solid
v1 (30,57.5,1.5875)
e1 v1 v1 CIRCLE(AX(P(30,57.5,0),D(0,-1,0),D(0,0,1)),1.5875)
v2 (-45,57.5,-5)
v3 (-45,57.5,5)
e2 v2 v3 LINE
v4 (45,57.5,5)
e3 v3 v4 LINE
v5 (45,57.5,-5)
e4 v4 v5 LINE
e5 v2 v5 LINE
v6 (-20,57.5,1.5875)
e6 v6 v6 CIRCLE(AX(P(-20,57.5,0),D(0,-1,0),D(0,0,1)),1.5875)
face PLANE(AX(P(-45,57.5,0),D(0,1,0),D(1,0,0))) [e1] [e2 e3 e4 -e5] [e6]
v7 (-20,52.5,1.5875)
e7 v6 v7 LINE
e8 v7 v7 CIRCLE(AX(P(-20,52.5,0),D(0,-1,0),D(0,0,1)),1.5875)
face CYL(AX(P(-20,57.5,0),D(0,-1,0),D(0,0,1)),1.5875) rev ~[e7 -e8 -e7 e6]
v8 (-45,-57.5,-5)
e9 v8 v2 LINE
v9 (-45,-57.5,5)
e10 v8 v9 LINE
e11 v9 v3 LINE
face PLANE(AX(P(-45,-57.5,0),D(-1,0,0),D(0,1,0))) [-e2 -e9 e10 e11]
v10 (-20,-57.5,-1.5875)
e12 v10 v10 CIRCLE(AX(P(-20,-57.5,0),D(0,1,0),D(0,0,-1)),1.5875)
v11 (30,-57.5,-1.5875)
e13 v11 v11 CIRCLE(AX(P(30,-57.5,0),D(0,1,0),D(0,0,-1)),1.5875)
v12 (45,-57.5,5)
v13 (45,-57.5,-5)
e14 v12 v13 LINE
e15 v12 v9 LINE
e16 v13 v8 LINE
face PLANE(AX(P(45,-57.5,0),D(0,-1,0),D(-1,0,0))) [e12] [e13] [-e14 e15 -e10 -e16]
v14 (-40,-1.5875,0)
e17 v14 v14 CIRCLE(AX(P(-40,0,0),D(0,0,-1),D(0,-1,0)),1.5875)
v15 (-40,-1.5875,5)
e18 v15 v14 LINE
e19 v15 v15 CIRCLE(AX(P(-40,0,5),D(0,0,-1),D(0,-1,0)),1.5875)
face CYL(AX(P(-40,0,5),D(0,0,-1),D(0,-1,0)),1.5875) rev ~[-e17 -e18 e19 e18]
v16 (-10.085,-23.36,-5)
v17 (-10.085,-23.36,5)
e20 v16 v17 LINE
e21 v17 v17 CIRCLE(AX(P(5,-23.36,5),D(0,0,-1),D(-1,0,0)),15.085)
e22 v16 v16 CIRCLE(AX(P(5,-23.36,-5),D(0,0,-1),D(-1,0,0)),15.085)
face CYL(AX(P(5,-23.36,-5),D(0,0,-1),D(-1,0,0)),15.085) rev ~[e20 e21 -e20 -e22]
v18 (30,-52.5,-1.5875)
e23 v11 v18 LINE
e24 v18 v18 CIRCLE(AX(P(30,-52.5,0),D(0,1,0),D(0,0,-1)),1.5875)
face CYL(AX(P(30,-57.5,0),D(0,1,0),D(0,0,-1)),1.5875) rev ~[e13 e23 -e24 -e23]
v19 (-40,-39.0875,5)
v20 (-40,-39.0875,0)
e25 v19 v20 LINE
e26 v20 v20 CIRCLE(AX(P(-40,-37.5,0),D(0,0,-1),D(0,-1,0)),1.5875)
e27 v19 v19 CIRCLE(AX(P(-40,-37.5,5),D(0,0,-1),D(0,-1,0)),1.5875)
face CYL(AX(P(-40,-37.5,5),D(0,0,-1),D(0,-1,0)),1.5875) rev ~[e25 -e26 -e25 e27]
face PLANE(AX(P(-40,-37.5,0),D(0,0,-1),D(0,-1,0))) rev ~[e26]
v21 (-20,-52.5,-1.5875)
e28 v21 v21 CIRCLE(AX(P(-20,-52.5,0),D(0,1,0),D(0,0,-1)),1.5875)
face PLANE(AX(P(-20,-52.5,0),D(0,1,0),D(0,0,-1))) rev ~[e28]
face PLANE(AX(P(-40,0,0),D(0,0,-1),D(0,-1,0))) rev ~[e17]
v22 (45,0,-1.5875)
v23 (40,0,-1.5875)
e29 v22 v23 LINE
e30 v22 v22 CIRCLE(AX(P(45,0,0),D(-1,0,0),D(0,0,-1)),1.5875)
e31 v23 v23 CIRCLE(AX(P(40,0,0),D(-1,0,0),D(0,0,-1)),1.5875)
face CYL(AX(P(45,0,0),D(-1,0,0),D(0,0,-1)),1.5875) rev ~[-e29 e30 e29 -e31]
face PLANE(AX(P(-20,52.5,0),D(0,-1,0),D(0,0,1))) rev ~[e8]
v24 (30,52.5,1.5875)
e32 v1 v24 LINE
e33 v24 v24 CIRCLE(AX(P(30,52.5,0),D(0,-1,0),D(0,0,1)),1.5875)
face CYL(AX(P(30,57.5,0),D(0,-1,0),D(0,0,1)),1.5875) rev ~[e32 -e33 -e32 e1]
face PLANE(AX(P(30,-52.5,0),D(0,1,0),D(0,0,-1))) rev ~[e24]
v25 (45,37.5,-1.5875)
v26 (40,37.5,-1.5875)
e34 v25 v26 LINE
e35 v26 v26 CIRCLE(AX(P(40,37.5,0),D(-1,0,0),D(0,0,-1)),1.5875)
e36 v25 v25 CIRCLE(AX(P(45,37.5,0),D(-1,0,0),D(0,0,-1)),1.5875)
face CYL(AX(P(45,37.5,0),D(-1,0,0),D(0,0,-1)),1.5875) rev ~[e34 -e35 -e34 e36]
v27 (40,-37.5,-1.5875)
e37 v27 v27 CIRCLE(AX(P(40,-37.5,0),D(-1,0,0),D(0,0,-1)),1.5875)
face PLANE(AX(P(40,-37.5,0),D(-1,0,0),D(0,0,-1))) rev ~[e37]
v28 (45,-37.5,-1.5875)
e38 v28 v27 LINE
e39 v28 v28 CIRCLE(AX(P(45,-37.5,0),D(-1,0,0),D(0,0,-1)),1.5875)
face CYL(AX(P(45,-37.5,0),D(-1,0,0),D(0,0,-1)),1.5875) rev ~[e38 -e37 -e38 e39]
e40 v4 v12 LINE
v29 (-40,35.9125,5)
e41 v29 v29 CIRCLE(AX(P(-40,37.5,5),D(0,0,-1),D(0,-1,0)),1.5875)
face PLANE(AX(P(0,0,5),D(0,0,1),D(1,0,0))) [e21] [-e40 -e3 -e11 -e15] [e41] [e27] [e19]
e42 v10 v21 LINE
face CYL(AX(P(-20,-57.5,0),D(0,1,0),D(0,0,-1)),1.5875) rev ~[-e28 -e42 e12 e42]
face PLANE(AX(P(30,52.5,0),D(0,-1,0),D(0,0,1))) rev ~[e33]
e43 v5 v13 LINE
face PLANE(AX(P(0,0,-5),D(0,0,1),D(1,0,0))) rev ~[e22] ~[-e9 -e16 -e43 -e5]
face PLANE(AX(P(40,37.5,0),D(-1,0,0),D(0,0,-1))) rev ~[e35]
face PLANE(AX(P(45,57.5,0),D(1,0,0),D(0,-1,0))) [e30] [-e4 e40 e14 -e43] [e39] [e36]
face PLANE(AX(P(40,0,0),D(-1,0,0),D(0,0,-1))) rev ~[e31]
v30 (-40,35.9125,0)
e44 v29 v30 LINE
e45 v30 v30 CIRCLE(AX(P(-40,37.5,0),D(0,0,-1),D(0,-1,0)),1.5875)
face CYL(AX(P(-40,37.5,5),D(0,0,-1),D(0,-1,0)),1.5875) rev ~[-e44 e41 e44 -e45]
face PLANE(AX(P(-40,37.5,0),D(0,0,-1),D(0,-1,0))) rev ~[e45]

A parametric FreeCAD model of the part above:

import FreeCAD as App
import Part
import Sketcher

doc = App.newDocument("Part")
body = doc.addObject("PartDesign::Body", "Body")

# Sketch on XY plane
sketch1 = doc.addObject("Sketcher::SketchObject", "Sketch")
body.addObject(sketch1)
sketch1.AttachmentSupport = (doc.XY_Plane, [""])
sketch1.MapMode = "FlatFace"
sketch1.addGeometry(Part.LineSegment(App.Vector(45, 57.5, 0), App.Vector(-45, 57.5, 0)), False)
sketch1.addGeometry(Part.LineSegment(App.Vector(-45, 57.5, 0), App.Vector(-45, -57.5, 0)), False)
sketch1.addGeometry(Part.LineSegment(App.Vector(-45, -57.5, 0), App.Vector(45, -57.5, 0)), False)
sketch1.addGeometry(Part.LineSegment(App.Vector(45, -57.5, 0), App.Vector(45, 57.5, 0)), False)
sketch1.addConstraint(Sketcher.Constraint("Coincident", 0, 2, 1, 1))
sketch1.addConstraint(Sketcher.Constraint("Coincident", 1, 2, 2, 1))
sketch1.addConstraint(Sketcher.Constraint("Coincident", 2, 2, 3, 1))
sketch1.addConstraint(Sketcher.Constraint("Coincident", 3, 2, 0, 1))
sketch1.addConstraint(Sketcher.Constraint("Horizontal", 0))
sketch1.addConstraint(Sketcher.Constraint("Vertical", 1))
sketch1.addConstraint(Sketcher.Constraint("Horizontal", 2))
sketch1.addConstraint(Sketcher.Constraint("Vertical", 3))
sketch1.addConstraint(Sketcher.Constraint("Symmetric", 0, 2, 2, 2, -1, 1))
sketch1.addConstraint(Sketcher.Constraint("DistanceX", 0, 2, 0, 1, 90.0))
sketch1.addConstraint(Sketcher.Constraint("DistanceY", 1, 2, 1, 1, 115.0))
pad1 = doc.addObject("PartDesign::Pad", "Pad")
body.addObject(pad1)
pad1.Profile = sketch1
pad1.Length = 10
pad1.Midplane = True

# Sketch on YZ plane
sketch2 = doc.addObject("Sketcher::SketchObject", "Sketch001")
body.addObject(sketch2)
sketch2.AttachmentSupport = (doc.YZ_Plane, [""])
sketch2.MapMode = "FlatFace"
sketch2.AttachmentOffset = App.Placement(App.Vector(0, 0, 45), App.Rotation())
sketch2.addGeometry(Part.Circle(App.Vector(-37.5, 0, 0), App.Vector(0, 0, 1), 1.5875), False)
sketch2.addGeometry(Part.Circle(App.Vector(0, 0, 0), App.Vector(0, 0, 1), 1.5875), False)
sketch2.addGeometry(Part.Circle(App.Vector(37.5, 0, 0), App.Vector(0, 0, 1), 1.5875), False)
sketch2.addConstraint(Sketcher.Constraint("Coincident", 1, 3, -1, 1))
sketch2.addConstraint(Sketcher.Constraint("Equal", 0, 1))
sketch2.addConstraint(Sketcher.Constraint("Equal", 1, 2))
sketch2.addConstraint(Sketcher.Constraint("Symmetric", 0, 3, 2, 3, -1, 1))
sketch2.addConstraint(Sketcher.Constraint("PointOnObject", 0, 3, -1))
sketch2.addConstraint(Sketcher.Constraint("Diameter", 0, 3.175))
sketch2.addConstraint(Sketcher.Constraint("DistanceX", 0, 3, 2, 3, 75.0))
doc.recompute()
hole = doc.addObject("PartDesign::Hole", "Hole")
body.addObject(hole)
hole.Profile = sketch2
hole.ThreadType = "None"
hole.Diameter = 3.175
hole.DepthType = "Dimension"
hole.Depth = 5
hole.DrillPoint = "Flat"

# Sketch on XZ plane
sketch3 = doc.addObject("Sketcher::SketchObject", "Sketch002")
body.addObject(sketch3)
sketch3.AttachmentSupport = (doc.XZ_Plane, [""])
sketch3.MapMode = "FlatFace"
sketch3.AttachmentOffset = App.Placement(App.Vector(0, 0, 57.5), App.Rotation())
sketch3.addGeometry(Part.Circle(App.Vector(-20, 0, 0), App.Vector(0, 0, 1), 1.5875), False)
sketch3.addGeometry(Part.Circle(App.Vector(30, 0, 0), App.Vector(0, 0, 1), 1.5875), False)
sketch3.addConstraint(Sketcher.Constraint("Equal", 0, 1))
sketch3.addConstraint(Sketcher.Constraint("PointOnObject", 0, 3, -1))
sketch3.addConstraint(Sketcher.Constraint("PointOnObject", 1, 3, -1))
sketch3.addConstraint(Sketcher.Constraint("Diameter", 0, 3.175))
sketch3.addConstraint(Sketcher.Constraint("DistanceX", 0, 3, -1, 1, 20.0))
sketch3.addConstraint(Sketcher.Constraint("DistanceX", -1, 1, 1, 3, 30.0))
doc.recompute()
hole2 = doc.addObject("PartDesign::Hole", "Hole001")
body.addObject(hole2)
hole2.Profile = sketch3
hole2.ThreadType = "None"
hole2.Diameter = 3.175
hole2.DepthType = "Dimension"
hole2.Depth = 5
hole2.DrillPoint = "Flat"

# Sketch on XZ plane
sketch4 = doc.addObject("Sketcher::SketchObject", "Sketch003")
body.addObject(sketch4)
sketch4.AttachmentSupport = (doc.XZ_Plane, [""])
sketch4.MapMode = "FlatFace"
sketch4.AttachmentOffset = App.Placement(App.Vector(0, 0, -57.5), App.Rotation())
sketch4.addGeometry(Part.Circle(App.Vector(-20, 0, 0), App.Vector(0, 0, 1), 1.5875), False)
sketch4.addGeometry(Part.Circle(App.Vector(30, 0, 0), App.Vector(0, 0, 1), 1.5875), False)
sketch4.addConstraint(Sketcher.Constraint("Equal", 0, 1))
sketch4.addConstraint(Sketcher.Constraint("PointOnObject", 0, 3, -1))
sketch4.addConstraint(Sketcher.Constraint("PointOnObject", 1, 3, -1))
sketch4.addConstraint(Sketcher.Constraint("Diameter", 0, 3.175))
sketch4.addConstraint(Sketcher.Constraint("DistanceX", 0, 3, -1, 1, 20.0))
sketch4.addConstraint(Sketcher.Constraint("DistanceX", -1, 1, 1, 3, 30.0))
doc.recompute()
hole3 = doc.addObject("PartDesign::Hole", "Hole002")
body.addObject(hole3)
hole3.Profile = sketch4
hole3.ThreadType = "None"
hole3.Diameter = 3.175
hole3.DepthType = "Dimension"
hole3.Depth = 5
hole3.DrillPoint = "Flat"
hole3.Reversed = True

# Sketch on XY plane
sketch5 = doc.addObject("Sketcher::SketchObject", "Sketch004")
body.addObject(sketch5)
sketch5.AttachmentSupport = (doc.XY_Plane, [""])
sketch5.MapMode = "FlatFace"
sketch5.AttachmentOffset = App.Placement(App.Vector(0, 0, 5), App.Rotation())
sketch5.addGeometry(Part.Circle(App.Vector(-40, -37.5, 0), App.Vector(0, 0, 1), 1.5875), False)
sketch5.addGeometry(Part.Circle(App.Vector(-40, 0, 0), App.Vector(0, 0, 1), 1.5875), False)
sketch5.addGeometry(Part.Circle(App.Vector(-40, 37.5, 0), App.Vector(0, 0, 1), 1.5875), False)
sketch5.addConstraint(Sketcher.Constraint("Equal", 0, 1))
sketch5.addConstraint(Sketcher.Constraint("Equal", 1, 2))
sketch5.addConstraint(Sketcher.Constraint("Symmetric", 0, 3, 2, 3, -1))
sketch5.addConstraint(Sketcher.Constraint("PointOnObject", 1, 3, -1))
sketch5.addConstraint(Sketcher.Constraint("Vertical", 0, 3, 1, 3))
sketch5.addConstraint(Sketcher.Constraint("Diameter", 0, 3.175))
sketch5.addConstraint(Sketcher.Constraint("DistanceX", 0, 3, -1, 1, 40.0))
sketch5.addConstraint(Sketcher.Constraint("DistanceY", 0, 3, 2, 3, 75.0))
doc.recompute()
hole4 = doc.addObject("PartDesign::Hole", "Hole003")
body.addObject(hole4)
hole4.Profile = sketch5
hole4.ThreadType = "None"
hole4.Diameter = 3.175
hole4.DepthType = "Dimension"
hole4.Depth = 5
hole4.DrillPoint = "Flat"

# Sketch on XY plane
sketch6 = doc.addObject("Sketcher::SketchObject", "Sketch005")
body.addObject(sketch6)
sketch6.AttachmentSupport = (doc.XY_Plane, [""])
sketch6.MapMode = "FlatFace"
sketch6.AttachmentOffset = App.Placement(App.Vector(0, 0, -5), App.Rotation())
sketch6.addGeometry(Part.Circle(App.Vector(5, -23.36, 0), App.Vector(0, 0, 1), 15.085), False)
sketch6.addConstraint(Sketcher.Constraint("Diameter", 0, 30.17))
sketch6.addConstraint(Sketcher.Constraint("DistanceX", -1, 1, 0, 3, 5.0))
sketch6.addConstraint(Sketcher.Constraint("DistanceY", 0, 3, -1, 1, 23.36))
pocket1 = doc.addObject("PartDesign::Pocket", "Pocket")
body.addObject(pocket1)
pocket1.Profile = sketch6
pocket1.Type = "ThroughAll"
pocket1.Reversed = True

doc.recompute()
